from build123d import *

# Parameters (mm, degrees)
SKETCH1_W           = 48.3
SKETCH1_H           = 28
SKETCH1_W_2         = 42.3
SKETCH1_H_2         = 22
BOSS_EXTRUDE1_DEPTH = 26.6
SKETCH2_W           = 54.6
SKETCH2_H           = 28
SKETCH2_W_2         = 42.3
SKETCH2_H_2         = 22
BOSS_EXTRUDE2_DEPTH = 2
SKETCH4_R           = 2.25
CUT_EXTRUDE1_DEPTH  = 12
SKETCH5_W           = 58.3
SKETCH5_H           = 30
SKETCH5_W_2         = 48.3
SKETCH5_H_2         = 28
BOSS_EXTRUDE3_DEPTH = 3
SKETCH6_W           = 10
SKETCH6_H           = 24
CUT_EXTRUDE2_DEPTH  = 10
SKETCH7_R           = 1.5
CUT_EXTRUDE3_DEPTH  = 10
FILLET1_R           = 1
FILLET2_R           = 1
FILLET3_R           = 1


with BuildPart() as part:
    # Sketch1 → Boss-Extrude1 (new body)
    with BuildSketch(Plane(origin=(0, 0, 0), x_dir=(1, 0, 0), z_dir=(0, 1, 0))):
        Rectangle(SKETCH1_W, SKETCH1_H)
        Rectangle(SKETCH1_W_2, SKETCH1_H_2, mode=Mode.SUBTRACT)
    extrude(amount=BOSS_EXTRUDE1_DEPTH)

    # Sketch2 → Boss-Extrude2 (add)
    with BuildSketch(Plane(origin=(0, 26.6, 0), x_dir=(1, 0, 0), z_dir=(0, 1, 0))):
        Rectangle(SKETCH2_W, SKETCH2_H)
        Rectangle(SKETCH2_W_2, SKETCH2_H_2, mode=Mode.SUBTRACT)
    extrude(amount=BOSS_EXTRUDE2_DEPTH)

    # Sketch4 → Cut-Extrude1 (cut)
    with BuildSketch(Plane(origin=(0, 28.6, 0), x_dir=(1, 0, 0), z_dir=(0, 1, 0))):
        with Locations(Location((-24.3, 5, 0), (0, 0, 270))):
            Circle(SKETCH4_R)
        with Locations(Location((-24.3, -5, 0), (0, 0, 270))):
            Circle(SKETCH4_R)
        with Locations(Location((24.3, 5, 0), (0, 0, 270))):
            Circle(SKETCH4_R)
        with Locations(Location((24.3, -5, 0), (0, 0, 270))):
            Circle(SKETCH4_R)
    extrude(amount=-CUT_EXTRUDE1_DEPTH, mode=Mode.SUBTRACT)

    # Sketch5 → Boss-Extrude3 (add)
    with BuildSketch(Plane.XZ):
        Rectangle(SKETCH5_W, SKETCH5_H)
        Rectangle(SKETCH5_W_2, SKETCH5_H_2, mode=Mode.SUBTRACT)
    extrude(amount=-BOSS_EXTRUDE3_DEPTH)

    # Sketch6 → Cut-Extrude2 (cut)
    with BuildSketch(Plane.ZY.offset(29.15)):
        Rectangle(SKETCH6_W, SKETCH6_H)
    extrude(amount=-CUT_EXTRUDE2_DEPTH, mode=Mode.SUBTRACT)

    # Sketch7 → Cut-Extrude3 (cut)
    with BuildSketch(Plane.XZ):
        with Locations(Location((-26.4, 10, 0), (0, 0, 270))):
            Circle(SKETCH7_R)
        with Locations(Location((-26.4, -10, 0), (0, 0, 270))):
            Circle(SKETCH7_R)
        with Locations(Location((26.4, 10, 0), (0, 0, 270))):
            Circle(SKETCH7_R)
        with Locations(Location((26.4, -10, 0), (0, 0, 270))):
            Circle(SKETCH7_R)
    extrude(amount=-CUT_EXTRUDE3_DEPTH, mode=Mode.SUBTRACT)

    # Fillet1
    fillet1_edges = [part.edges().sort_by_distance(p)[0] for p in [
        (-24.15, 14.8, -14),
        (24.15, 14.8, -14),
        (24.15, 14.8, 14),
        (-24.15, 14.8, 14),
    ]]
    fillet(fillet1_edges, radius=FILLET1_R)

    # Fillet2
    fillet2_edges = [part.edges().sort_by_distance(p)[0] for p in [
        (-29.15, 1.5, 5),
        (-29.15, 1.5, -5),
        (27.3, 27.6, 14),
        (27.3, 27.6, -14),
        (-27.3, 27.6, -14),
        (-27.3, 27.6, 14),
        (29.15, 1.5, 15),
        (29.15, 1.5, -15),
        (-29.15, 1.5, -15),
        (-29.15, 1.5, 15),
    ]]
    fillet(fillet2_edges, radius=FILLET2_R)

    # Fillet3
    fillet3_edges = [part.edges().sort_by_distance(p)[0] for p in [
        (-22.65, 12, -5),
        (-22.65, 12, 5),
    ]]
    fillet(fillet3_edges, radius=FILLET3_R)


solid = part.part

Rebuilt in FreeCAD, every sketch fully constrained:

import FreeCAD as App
import Part
import Sketcher
Q = App.Units.Quantity


def edges_at(feature, points):
    """Names of the edges that pass closest to the given points."""
    edges = feature.Shape.Edges
    near = lambda p: min(range(len(edges)), key=lambda i: edges[i].distToShape(Part.Vertex(*p))[0])
    return sorted({f"Edge{near(p) + 1}" for p in points})

doc = App.newDocument("Part")
body = doc.addObject("PartDesign::Body", "Body")

# Sketch on XZ plane
sketch1 = body.newObject("Sketcher::SketchObject", "Sketch")
sketch1.AttachmentSupport = (doc.getObject("XZ_Plane"), [""])
sketch1.MapMode = "FlatFace"
sketch1.addGeometry([
    Part.LineSegment(App.Vector(-24.15, -14, 0), App.Vector(-24.15, 14, 0)),  # 0
    Part.LineSegment(App.Vector(-24.15, 14, 0), App.Vector(24.15, 14, 0)),  # 1
    Part.LineSegment(App.Vector(24.15, 14, 0), App.Vector(24.15, -14, 0)),  # 2
    Part.LineSegment(App.Vector(24.15, -14, 0), App.Vector(-24.15, -14, 0)),  # 3
    Part.LineSegment(App.Vector(21.15, 11, 0), App.Vector(-21.15, 11, 0)),  # 4
    Part.LineSegment(App.Vector(-21.15, 11, 0), App.Vector(-21.15, -11, 0)),  # 5
    Part.LineSegment(App.Vector(-21.15, -11, 0), App.Vector(21.15, -11, 0)),  # 6
    Part.LineSegment(App.Vector(21.15, -11, 0), App.Vector(21.15, 11, 0)),  # 7
], False)
sketch1.addConstraint([
    Sketcher.Constraint("Coincident", 0, 2, 1, 1),
    Sketcher.Constraint("Coincident", 1, 2, 2, 1),
    Sketcher.Constraint("Coincident", 2, 2, 3, 1),
    Sketcher.Constraint("Coincident", 3, 2, 0, 1),
    Sketcher.Constraint("Coincident", 4, 2, 5, 1),
    Sketcher.Constraint("Coincident", 5, 2, 6, 1),
    Sketcher.Constraint("Coincident", 6, 2, 7, 1),
    Sketcher.Constraint("Coincident", 7, 2, 4, 1),
    Sketcher.Constraint("Vertical", 0),
    Sketcher.Constraint("Horizontal", 1),
    Sketcher.Constraint("Vertical", 2),
    Sketcher.Constraint("Horizontal", 3),
    Sketcher.Constraint("Horizontal", 4),
    Sketcher.Constraint("Vertical", 5),
    Sketcher.Constraint("Horizontal", 6),
    Sketcher.Constraint("Vertical", 7),
    Sketcher.Constraint("Symmetric", 0, 2, 2, 2, -1, 1),
    Sketcher.Constraint("Symmetric", 4, 2, 6, 2, -1, 1),
    Sketcher.Constraint("DistanceY", 0, 1, 0, 2, Q("28 mm")),
    Sketcher.Constraint("DistanceY", 5, 2, 5, 1, Q("22 mm")),
    Sketcher.Constraint("DistanceX", 1, 1, 1, 2, Q("48.3 mm")),
    Sketcher.Constraint("DistanceX", 4, 2, 4, 1, Q("42.3 mm")),
])
pad1 = body.newObject("PartDesign::Pad", "Pad")
pad1.Profile = sketch1
pad1.Length = 26.6
pad1.Reversed = True

# Sketch on XZ plane
sketch2 = body.newObject("Sketcher::SketchObject", "Sketch001")
sketch2.AttachmentSupport = (doc.getObject("XZ_Plane"), [""])
sketch2.MapMode = "FlatFace"
sketch2.AttachmentOffset = App.Placement(App.Vector(0, 0, -26.6), App.Rotation())
sketch2.addGeometry([
    Part.LineSegment(App.Vector(-27.3, -14, 0), App.Vector(-27.3, 14, 0)),  # 0
    Part.LineSegment(App.Vector(-27.3, 14, 0), App.Vector(27.3, 14, 0)),  # 1
    Part.LineSegment(App.Vector(27.3, 14, 0), App.Vector(27.3, -14, 0)),  # 2
    Part.LineSegment(App.Vector(27.3, -14, 0), App.Vector(-27.3, -14, 0)),  # 3
    Part.LineSegment(App.Vector(21.15, 11, 0), App.Vector(-21.15, 11, 0)),  # 4
    Part.LineSegment(App.Vector(-21.15, 11, 0), App.Vector(-21.15, -11, 0)),  # 5
    Part.LineSegment(App.Vector(-21.15, -11, 0), App.Vector(21.15, -11, 0)),  # 6
    Part.LineSegment(App.Vector(21.15, -11, 0), App.Vector(21.15, 11, 0)),  # 7
], False)
sketch2.addConstraint([
    Sketcher.Constraint("Coincident", 0, 2, 1, 1),
    Sketcher.Constraint("Coincident", 1, 2, 2, 1),
    Sketcher.Constraint("Coincident", 2, 2, 3, 1),
    Sketcher.Constraint("Coincident", 3, 2, 0, 1),
    Sketcher.Constraint("Coincident", 4, 2, 5, 1),
    Sketcher.Constraint("Coincident", 5, 2, 6, 1),
    Sketcher.Constraint("Coincident", 6, 2, 7, 1),
    Sketcher.Constraint("Coincident", 7, 2, 4, 1),
    Sketcher.Constraint("Vertical", 0),
    Sketcher.Constraint("Horizontal", 1),
    Sketcher.Constraint("Vertical", 2),
    Sketcher.Constraint("Horizontal", 3),
    Sketcher.Constraint("Horizontal", 4),
    Sketcher.Constraint("Vertical", 5),
    Sketcher.Constraint("Horizontal", 6),
    Sketcher.Constraint("Vertical", 7),
    Sketcher.Constraint("Symmetric", 0, 2, 2, 2, -1, 1),
    Sketcher.Constraint("Symmetric", 4, 2, 6, 2, -1, 1),
    Sketcher.Constraint("DistanceY", 0, 1, 0, 2, Q("28 mm")),
    Sketcher.Constraint("DistanceY", 5, 2, 5, 1, Q("22 mm")),
    Sketcher.Constraint("DistanceX", 1, 1, 1, 2, Q("54.6 mm")),
    Sketcher.Constraint("DistanceX", 4, 2, 4, 1, Q("42.3 mm")),
])
pad2 = body.newObject("PartDesign::Pad", "Pad001")
pad2.Profile = sketch2
pad2.Length = 2
pad2.Reversed = True

# Sketch on XZ plane
sketch3 = body.newObject("Sketcher::SketchObject", "Sketch002")
sketch3.AttachmentSupport = (doc.getObject("XZ_Plane"), [""])
sketch3.MapMode = "FlatFace"
sketch3.AttachmentOffset = App.Placement(App.Vector(0, 0, -28.6), App.Rotation())
sketch3.addGeometry([
    Part.Circle(App.Vector(-24.3, -5, 0), App.Vector(0, 0, 1), 2.25),
    Part.Circle(App.Vector(-24.3, 5, 0), App.Vector(0, 0, 1), 2.25),
    Part.Circle(App.Vector(24.3, -5, 0), App.Vector(0, 0, 1), 2.25),
    Part.Circle(App.Vector(24.3, 5, 0), App.Vector(0, 0, 1), 2.25),
], False)
sketch3.addConstraint([
    Sketcher.Constraint("Equal", 0, 1),
    Sketcher.Constraint("Equal", 1, 2),
    Sketcher.Constraint("Equal", 2, 3),
    Sketcher.Constraint("Symmetric", 1, 3, 2, 3, -1, 1),
    Sketcher.Constraint("Symmetric", 0, 3, 3, 3, -1, 1),
    Sketcher.Constraint("Symmetric", 0, 3, 2, 3, -2),
    Sketcher.Constraint("Diameter", 0, Q("4.5 mm")),
    Sketcher.Constraint("DistanceY", 0, 3, -1, 1, Q("5 mm")),
    Sketcher.Constraint("DistanceX", 0, 3, -1, 1, Q("24.3 mm")),
])
pocket1 = body.newObject("PartDesign::Pocket", "Pocket")
pocket1.Profile = sketch3
pocket1.Length = 12
pocket1.Reversed = True

# Sketch on XZ plane
sketch4 = body.newObject("Sketcher::SketchObject", "Sketch003")
sketch4.AttachmentSupport = (doc.getObject("XZ_Plane"), [""])
sketch4.MapMode = "FlatFace"
sketch4.addGeometry([
    Part.LineSegment(App.Vector(-29.15, 15, 0), App.Vector(-29.15, -15, 0)),  # 0
    Part.LineSegment(App.Vector(-29.15, -15, 0), App.Vector(29.15, -15, 0)),  # 1
    Part.LineSegment(App.Vector(29.15, -15, 0), App.Vector(29.15, 15, 0)),  # 2
    Part.LineSegment(App.Vector(29.15, 15, 0), App.Vector(-29.15, 15, 0)),  # 3
    Part.LineSegment(App.Vector(24.15, -14, 0), App.Vector(-24.15, -14, 0)),  # 4
    Part.LineSegment(App.Vector(-24.15, -14, 0), App.Vector(-24.15, 14, 0)),  # 5
    Part.LineSegment(App.Vector(-24.15, 14, 0), App.Vector(24.15, 14, 0)),  # 6
    Part.LineSegment(App.Vector(24.15, 14, 0), App.Vector(24.15, -14, 0)),  # 7
], False)
sketch4.addConstraint([
    Sketcher.Constraint("Coincident", 0, 2, 1, 1),
    Sketcher.Constraint("Coincident", 1, 2, 2, 1),
    Sketcher.Constraint("Coincident", 2, 2, 3, 1),
    Sketcher.Constraint("Coincident", 3, 2, 0, 1),
    Sketcher.Constraint("Coincident", 4, 2, 5, 1),
    Sketcher.Constraint("Coincident", 5, 2, 6, 1),
    Sketcher.Constraint("Coincident", 6, 2, 7, 1),
    Sketcher.Constraint("Coincident", 7, 2, 4, 1),
    Sketcher.Constraint("Vertical", 0),
    Sketcher.Constraint("Horizontal", 1),
    Sketcher.Constraint("Vertical", 2),
    Sketcher.Constraint("Horizontal", 3),
    Sketcher.Constraint("Horizontal", 4),
    Sketcher.Constraint("Vertical", 5),
    Sketcher.Constraint("Horizontal", 6),
    Sketcher.Constraint("Vertical", 7),
    Sketcher.Constraint("Symmetric", 0, 2, 2, 2, -1, 1),
    Sketcher.Constraint("Symmetric", 4, 2, 6, 2, -1, 1),
    Sketcher.Constraint("DistanceY", 0, 2, 0, 1, Q("30 mm")),
    Sketcher.Constraint("DistanceY", 5, 1, 5, 2, Q("28 mm")),
    Sketcher.Constraint("DistanceX", 1, 1, 1, 2, Q("58.3 mm")),
    Sketcher.Constraint("DistanceX", 4, 2, 4, 1, Q("48.3 mm")),
])
pad3 = body.newObject("PartDesign::Pad", "Pad002")
pad3.Profile = sketch4
pad3.Length = 3
pad3.Reversed = True

# Sketch on YZ plane
sketch5 = body.newObject("Sketcher::SketchObject", "Sketch004")
sketch5.AttachmentSupport = (doc.getObject("YZ_Plane"), [""])
sketch5.MapMode = "FlatFace"
sketch5.AttachmentOffset = App.Placement(App.Vector(0, 0, -29.15), App.Rotation())
sketch5.addGeometry([
    Part.LineSegment(App.Vector(12, -5, 0), App.Vector(-12, -5, 0)),
    Part.LineSegment(App.Vector(-12, -5, 0), App.Vector(-12, 5, 0)),
    Part.LineSegment(App.Vector(-12, 5, 0), App.Vector(12, 5, 0)),
    Part.LineSegment(App.Vector(12, 5, 0), App.Vector(12, -5, 0)),
], False)
sketch5.addConstraint([
    Sketcher.Constraint("Coincident", 0, 2, 1, 1),
    Sketcher.Constraint("Coincident", 1, 2, 2, 1),
    Sketcher.Constraint("Coincident", 2, 2, 3, 1),
    Sketcher.Constraint("Coincident", 3, 2, 0, 1),
    Sketcher.Constraint("Horizontal", 0),
    Sketcher.Constraint("Vertical", 1),
    Sketcher.Constraint("Horizontal", 2),
    Sketcher.Constraint("Vertical", 3),
    Sketcher.Constraint("Symmetric", 0, 2, 2, 2, -1, 1),
    Sketcher.Constraint("DistanceX", 0, 2, 0, 1, Q("24 mm")),
    Sketcher.Constraint("DistanceY", 1, 1, 1, 2, Q("10 mm")),
])
pocket2 = body.newObject("PartDesign::Pocket", "Pocket001")
pocket2.Profile = sketch5
pocket2.Length = 10
pocket2.Reversed = True

# Sketch on XZ plane
sketch6 = body.newObject("Sketcher::SketchObject", "Sketch005")
sketch6.AttachmentSupport = (doc.getObject("XZ_Plane"), [""])
sketch6.MapMode = "FlatFace"
sketch6.addGeometry([
    Part.Circle(App.Vector(-26.4, 10, 0), App.Vector(0, 0, 1), 1.5),
    Part.Circle(App.Vector(-26.4, -10, 0), App.Vector(0, 0, 1), 1.5),
    Part.Circle(App.Vector(26.4, 10, 0), App.Vector(0, 0, 1), 1.5),
    Part.Circle(App.Vector(26.4, -10, 0), App.Vector(0, 0, 1), 1.5),
], False)
sketch6.addConstraint([
    Sketcher.Constraint("Equal", 0, 1),
    Sketcher.Constraint("Equal", 1, 2),
    Sketcher.Constraint("Equal", 2, 3),
    Sketcher.Constraint("Symmetric", 1, 3, 2, 3, -1, 1),
    Sketcher.Constraint("Symmetric", 0, 3, 3, 3, -1, 1),
    Sketcher.Constraint("Symmetric", 0, 3, 2, 3, -2),
    Sketcher.Constraint("Diameter", 0, Q("3 mm")),
    Sketcher.Constraint("DistanceY", -1, 1, 0, 3, Q("10 mm")),
    Sketcher.Constraint("DistanceX", 0, 3, -1, 1, Q("26.4 mm")),
])
pocket3 = body.newObject("PartDesign::Pocket", "Pocket002")
pocket3.Profile = sketch6
pocket3.Length = 10
doc.recompute()

fillet = body.newObject("PartDesign::Fillet", "Fillet")
fillet.Base = (pocket3, edges_at(pocket3, [
    (-24.15, 14.8, -14),
    (24.15, 14.8, -14),
    (24.15, 14.8, 14),
    (-24.15, 14.8, 14),
]))
fillet.Radius = 1
doc.recompute()

fillet2 = body.newObject("PartDesign::Fillet", "Fillet001")
fillet2.Base = (fillet, edges_at(fillet, [
    (-29.15, 1.5, 5),
    (-29.15, 1.5, -5),
    (27.3, 27.6, 14),
    (27.3, 27.6, -14),
    (-27.3, 27.6, -14),
    (-27.3, 27.6, 14),
    (29.15, 1.5, 15),
    (29.15, 1.5, -15),
    (-29.15, 1.5, -15),
    (-29.15, 1.5, 15),
]))
fillet2.Radius = 1
doc.recompute()

fillet3 = body.newObject("PartDesign::Fillet", "Fillet002")
fillet3.Base = (fillet2, edges_at(fillet2, [(-22.65, 12, -5), (-22.65, 12, 5)]))
fillet3.Radius = 1

doc.recompute()
